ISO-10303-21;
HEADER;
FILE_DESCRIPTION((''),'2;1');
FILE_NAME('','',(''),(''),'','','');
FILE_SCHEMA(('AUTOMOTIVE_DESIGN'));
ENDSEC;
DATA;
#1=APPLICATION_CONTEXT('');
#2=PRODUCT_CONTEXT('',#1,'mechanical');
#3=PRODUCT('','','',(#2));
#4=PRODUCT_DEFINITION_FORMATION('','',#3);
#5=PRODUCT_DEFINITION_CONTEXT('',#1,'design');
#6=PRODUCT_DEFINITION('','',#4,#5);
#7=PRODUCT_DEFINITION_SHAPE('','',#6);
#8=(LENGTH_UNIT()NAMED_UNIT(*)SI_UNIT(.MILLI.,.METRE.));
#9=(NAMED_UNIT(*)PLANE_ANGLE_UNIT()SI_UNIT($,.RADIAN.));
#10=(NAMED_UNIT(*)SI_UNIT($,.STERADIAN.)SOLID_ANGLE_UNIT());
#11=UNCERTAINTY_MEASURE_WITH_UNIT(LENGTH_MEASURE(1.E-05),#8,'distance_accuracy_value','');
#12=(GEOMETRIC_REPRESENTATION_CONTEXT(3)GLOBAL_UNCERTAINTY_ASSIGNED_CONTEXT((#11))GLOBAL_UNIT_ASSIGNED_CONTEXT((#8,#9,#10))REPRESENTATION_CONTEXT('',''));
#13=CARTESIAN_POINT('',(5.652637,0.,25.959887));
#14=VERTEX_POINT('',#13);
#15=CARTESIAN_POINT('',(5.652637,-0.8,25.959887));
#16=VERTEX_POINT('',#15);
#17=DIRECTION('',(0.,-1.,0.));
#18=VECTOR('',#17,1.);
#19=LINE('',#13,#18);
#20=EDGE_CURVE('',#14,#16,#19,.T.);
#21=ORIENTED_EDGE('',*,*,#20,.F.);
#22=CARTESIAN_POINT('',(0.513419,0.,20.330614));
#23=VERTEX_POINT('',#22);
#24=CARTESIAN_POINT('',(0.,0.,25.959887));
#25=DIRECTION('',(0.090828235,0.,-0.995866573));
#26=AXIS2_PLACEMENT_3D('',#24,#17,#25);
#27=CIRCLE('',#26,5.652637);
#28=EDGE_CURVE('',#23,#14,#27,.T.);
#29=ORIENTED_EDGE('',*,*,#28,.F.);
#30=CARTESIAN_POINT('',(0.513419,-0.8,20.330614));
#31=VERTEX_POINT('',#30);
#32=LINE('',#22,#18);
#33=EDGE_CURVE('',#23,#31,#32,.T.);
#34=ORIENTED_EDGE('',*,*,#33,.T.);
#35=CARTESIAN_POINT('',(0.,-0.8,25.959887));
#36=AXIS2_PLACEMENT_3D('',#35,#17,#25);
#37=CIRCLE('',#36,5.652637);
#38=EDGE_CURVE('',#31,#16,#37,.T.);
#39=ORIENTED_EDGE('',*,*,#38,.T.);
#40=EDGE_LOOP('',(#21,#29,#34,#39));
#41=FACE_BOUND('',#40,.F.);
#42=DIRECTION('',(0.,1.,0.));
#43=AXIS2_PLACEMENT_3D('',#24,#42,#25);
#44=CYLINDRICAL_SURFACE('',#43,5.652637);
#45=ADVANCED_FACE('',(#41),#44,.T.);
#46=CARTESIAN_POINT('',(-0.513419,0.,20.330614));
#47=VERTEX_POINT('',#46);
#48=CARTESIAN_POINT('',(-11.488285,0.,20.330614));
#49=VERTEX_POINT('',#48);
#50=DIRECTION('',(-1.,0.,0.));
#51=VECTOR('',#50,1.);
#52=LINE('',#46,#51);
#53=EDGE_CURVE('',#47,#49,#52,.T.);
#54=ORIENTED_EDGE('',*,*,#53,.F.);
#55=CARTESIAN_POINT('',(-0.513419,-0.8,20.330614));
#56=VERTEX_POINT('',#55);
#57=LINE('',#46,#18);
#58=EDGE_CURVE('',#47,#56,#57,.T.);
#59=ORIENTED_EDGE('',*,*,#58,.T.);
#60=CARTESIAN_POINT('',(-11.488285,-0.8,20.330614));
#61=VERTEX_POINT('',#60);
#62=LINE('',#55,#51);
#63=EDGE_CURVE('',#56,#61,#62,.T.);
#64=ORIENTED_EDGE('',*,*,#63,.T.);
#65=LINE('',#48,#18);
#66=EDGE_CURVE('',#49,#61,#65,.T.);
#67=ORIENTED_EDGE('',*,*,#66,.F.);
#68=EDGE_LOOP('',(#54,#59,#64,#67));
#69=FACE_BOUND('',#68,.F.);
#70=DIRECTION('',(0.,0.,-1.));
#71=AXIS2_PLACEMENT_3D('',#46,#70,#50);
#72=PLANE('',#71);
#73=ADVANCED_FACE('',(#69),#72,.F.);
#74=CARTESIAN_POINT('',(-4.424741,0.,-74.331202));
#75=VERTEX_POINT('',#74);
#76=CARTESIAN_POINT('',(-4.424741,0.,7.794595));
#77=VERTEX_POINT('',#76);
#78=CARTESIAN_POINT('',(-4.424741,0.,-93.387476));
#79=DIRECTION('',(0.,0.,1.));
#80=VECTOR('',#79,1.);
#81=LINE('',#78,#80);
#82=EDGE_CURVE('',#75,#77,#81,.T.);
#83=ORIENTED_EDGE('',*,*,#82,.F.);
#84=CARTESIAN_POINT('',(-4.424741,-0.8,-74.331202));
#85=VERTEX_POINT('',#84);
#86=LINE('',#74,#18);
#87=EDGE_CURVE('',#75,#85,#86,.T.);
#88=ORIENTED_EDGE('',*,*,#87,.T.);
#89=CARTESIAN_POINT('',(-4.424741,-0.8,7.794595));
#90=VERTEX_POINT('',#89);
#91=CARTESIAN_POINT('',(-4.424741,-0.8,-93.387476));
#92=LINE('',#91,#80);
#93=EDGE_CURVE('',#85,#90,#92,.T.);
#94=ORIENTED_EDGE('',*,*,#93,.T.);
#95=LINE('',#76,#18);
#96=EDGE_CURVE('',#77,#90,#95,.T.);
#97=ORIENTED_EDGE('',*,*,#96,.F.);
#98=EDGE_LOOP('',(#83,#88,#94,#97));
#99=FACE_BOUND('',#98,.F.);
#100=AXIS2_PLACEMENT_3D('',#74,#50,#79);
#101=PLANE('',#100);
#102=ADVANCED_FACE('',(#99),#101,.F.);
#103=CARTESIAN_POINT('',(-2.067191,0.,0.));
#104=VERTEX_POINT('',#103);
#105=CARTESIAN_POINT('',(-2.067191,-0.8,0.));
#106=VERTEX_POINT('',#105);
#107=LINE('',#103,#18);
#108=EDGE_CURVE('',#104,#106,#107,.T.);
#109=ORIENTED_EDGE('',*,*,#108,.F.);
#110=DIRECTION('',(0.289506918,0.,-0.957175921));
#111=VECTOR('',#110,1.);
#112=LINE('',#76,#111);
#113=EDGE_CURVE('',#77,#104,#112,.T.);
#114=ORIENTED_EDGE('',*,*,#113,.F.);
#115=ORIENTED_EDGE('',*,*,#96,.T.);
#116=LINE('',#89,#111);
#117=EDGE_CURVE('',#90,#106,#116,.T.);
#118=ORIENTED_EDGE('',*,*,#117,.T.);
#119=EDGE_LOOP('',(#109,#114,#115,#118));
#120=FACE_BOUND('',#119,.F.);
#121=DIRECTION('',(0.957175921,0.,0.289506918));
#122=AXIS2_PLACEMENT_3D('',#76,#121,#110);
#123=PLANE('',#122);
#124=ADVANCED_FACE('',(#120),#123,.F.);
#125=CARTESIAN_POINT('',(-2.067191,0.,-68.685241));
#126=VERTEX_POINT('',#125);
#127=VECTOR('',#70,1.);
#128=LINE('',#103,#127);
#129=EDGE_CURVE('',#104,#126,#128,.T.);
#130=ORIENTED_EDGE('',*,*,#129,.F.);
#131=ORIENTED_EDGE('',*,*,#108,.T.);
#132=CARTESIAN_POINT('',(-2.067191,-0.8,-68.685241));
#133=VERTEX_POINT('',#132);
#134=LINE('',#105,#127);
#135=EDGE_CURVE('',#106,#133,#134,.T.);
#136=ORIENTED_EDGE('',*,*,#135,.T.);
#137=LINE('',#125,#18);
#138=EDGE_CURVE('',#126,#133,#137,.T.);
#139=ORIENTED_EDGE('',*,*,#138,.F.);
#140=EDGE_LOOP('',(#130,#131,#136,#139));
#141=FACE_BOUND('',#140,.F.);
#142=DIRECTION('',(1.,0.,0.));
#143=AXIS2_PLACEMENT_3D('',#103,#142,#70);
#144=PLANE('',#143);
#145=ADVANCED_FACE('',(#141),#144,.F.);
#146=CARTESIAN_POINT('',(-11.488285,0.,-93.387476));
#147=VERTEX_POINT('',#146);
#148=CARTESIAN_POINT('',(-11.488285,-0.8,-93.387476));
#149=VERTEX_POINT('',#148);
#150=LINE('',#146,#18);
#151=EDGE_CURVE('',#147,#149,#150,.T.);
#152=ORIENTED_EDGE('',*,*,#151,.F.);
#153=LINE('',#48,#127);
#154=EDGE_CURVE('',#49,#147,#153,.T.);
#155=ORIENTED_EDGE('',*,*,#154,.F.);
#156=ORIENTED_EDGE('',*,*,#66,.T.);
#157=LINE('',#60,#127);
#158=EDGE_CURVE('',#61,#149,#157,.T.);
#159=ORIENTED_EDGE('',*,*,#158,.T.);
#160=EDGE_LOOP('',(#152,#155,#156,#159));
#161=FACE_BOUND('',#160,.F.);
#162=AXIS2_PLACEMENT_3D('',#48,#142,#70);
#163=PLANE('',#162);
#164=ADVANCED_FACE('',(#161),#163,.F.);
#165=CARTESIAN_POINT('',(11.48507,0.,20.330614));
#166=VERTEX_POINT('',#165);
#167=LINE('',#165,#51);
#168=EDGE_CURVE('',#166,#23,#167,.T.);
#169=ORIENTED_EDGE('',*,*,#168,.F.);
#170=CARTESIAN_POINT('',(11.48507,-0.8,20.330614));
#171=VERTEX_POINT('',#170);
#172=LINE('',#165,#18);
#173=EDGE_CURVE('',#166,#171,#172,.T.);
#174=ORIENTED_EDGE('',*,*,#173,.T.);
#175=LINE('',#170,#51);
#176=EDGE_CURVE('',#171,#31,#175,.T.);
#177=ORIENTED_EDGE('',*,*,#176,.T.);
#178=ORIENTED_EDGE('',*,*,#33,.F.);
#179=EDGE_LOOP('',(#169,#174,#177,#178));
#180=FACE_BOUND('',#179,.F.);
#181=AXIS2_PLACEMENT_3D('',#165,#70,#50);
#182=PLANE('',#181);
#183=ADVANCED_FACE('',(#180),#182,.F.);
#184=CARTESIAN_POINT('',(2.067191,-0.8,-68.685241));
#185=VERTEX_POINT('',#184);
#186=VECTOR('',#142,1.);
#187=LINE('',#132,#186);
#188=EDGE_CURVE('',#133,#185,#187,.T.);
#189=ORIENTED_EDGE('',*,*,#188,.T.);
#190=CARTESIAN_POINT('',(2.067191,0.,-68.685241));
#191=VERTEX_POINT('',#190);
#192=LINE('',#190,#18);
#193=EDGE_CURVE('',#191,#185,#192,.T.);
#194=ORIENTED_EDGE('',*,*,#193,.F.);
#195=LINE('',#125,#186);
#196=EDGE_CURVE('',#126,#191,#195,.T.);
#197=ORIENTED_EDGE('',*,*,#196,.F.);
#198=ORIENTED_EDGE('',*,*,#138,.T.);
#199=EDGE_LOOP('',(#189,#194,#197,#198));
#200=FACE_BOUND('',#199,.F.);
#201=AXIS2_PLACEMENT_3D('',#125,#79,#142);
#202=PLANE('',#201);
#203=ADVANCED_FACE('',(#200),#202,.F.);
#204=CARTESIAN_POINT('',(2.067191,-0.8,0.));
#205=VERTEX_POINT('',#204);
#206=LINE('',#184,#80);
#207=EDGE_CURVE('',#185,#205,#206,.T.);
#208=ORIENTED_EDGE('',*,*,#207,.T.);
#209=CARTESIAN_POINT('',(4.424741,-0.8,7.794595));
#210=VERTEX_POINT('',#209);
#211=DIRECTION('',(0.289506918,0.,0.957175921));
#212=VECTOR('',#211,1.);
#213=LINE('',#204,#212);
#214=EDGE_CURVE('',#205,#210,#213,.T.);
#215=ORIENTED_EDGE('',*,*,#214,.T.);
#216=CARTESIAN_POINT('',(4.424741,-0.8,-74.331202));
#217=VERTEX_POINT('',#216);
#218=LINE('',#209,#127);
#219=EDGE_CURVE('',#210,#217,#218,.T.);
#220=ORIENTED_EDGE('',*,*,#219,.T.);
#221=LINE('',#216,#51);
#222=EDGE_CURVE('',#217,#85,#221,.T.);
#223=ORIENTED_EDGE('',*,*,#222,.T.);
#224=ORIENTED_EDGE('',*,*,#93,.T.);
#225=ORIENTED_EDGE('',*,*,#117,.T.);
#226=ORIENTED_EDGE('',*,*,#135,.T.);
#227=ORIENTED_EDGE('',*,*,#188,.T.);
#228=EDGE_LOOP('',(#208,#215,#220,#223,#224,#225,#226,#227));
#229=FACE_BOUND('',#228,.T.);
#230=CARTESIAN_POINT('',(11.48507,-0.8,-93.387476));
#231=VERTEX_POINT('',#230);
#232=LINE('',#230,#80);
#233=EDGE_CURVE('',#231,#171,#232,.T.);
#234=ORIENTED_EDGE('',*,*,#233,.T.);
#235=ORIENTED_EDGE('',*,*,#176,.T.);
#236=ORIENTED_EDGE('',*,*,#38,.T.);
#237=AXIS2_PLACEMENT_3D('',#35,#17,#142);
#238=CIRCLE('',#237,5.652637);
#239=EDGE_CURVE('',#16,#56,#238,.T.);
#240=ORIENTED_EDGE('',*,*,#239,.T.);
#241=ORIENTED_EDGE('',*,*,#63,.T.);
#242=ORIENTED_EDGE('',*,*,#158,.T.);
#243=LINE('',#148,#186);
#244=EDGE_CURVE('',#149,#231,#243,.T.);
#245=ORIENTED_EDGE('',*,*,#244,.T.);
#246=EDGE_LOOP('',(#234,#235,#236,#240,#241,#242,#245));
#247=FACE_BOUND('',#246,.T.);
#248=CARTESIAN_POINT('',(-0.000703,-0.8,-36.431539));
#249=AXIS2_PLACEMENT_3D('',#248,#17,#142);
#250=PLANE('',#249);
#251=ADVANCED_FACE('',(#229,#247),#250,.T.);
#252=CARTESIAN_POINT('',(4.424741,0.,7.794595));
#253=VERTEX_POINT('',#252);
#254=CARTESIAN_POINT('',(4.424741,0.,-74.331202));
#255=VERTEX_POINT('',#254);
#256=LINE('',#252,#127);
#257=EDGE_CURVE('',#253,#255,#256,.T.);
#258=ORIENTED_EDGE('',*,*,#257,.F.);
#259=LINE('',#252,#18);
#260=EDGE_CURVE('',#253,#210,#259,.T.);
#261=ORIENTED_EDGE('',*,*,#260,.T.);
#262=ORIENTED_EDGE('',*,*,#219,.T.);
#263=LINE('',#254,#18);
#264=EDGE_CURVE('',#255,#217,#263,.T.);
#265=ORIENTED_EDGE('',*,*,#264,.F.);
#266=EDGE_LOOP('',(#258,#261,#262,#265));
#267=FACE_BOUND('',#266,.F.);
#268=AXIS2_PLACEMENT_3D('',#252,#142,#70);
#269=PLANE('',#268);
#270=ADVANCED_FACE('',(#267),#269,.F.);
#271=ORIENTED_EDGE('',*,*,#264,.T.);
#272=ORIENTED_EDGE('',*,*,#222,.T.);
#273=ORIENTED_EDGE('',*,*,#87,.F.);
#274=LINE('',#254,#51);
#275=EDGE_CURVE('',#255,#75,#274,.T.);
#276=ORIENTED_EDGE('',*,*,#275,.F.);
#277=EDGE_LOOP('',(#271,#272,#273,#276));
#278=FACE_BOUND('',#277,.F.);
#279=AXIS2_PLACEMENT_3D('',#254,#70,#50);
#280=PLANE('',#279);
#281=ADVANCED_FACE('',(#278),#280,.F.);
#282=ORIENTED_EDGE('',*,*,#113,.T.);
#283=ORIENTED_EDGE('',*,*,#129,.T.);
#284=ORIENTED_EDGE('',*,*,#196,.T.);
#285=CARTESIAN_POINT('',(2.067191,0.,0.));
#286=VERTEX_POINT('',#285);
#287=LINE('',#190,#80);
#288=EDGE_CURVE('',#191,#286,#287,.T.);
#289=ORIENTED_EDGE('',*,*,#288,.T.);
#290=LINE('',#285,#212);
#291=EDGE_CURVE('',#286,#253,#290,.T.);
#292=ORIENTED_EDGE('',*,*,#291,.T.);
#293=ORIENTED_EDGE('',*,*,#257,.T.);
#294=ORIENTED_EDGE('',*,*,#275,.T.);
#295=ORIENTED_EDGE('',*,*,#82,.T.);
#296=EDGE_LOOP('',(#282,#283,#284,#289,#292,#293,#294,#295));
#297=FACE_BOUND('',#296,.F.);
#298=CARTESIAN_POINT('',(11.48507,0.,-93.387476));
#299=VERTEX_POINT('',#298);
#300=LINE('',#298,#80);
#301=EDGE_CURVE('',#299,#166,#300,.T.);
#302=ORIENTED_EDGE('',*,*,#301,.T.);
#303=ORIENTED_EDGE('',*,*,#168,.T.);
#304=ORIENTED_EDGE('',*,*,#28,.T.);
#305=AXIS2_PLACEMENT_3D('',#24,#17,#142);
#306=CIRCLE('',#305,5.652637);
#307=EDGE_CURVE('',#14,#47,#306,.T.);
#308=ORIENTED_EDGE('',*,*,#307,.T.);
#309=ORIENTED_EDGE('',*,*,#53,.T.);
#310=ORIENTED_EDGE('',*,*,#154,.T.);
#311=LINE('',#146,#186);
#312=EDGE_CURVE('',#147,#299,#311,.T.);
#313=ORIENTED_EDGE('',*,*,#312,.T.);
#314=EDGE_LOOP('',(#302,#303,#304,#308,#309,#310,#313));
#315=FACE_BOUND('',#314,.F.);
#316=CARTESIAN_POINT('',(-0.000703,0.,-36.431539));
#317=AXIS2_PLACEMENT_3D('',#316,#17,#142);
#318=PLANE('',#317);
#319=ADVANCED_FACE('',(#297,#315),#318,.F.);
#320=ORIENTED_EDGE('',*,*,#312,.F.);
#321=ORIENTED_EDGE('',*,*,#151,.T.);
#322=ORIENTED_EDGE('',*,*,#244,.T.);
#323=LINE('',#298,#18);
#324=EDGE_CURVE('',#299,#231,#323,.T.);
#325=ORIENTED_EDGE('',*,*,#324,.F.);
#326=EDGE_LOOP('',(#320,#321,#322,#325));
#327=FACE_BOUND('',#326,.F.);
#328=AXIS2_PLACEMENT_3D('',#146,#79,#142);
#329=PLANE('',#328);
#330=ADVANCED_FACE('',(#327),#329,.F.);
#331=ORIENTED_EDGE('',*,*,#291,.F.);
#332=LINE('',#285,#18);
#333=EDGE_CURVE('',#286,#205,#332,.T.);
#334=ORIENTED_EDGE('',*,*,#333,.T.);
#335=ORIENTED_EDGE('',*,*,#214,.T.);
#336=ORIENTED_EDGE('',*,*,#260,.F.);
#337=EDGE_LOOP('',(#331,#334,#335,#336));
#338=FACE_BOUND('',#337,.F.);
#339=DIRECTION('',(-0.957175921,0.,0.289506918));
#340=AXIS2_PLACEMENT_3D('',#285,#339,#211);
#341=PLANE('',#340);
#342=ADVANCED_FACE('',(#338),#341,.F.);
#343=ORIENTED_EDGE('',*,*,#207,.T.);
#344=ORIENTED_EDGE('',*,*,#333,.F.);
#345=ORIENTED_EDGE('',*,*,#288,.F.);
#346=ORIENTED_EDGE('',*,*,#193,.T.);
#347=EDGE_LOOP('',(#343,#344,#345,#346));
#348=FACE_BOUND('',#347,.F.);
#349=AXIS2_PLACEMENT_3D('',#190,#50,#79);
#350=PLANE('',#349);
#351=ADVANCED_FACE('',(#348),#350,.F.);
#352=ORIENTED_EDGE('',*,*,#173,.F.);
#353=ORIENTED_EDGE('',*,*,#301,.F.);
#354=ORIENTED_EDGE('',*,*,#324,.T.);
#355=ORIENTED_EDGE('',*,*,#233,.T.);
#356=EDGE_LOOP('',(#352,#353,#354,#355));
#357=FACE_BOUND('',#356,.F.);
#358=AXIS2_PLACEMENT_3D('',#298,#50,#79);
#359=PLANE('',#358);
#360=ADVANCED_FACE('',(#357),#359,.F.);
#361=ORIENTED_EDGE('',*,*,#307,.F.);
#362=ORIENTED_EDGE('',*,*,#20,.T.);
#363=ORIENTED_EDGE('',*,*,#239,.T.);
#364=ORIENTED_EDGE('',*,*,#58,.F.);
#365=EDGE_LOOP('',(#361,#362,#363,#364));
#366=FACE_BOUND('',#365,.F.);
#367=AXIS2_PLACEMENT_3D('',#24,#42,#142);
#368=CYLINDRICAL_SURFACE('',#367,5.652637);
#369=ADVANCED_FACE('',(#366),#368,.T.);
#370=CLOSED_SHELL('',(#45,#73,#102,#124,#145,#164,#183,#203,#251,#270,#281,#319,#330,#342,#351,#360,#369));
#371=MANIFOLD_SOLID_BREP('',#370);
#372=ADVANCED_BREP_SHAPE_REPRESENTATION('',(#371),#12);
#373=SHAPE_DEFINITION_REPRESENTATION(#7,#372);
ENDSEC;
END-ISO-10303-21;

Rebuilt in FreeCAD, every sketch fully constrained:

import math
import FreeCAD as App
import Part
import Sketcher

V = App.Vector
Q = App.Units.Quantity

doc = App.newDocument("Part")
body = doc.addObject("PartDesign::Body", "Body")

sketch1 = body.newObject("Sketcher::SketchObject", "Sketch")
sketch1.AttachmentSupport = (doc.getObject("XZ_Plane"), [""])
sketch1.MapMode = "FlatFace"
sketch1.addGeometry(Part.LineSegment(V(-0.513419, 20.330614, 0), V(-11.488285, 20.330614, 0)), False)
sketch1.addGeometry(Part.LineSegment(V(-11.488285, 20.330614, 0), V(-11.488285, -93.387476, 0)), False)
sketch1.addGeometry(Part.LineSegment(V(-11.488285, -93.387476, 0), V(11.48507, -93.387476, 0)), False)
sketch1.addGeometry(Part.LineSegment(V(11.48507, -93.387476, 0), V(11.48507, 20.330614, 0)), False)
sketch1.addGeometry(Part.LineSegment(V(11.48507, 20.330614, 0), V(0.513419, 20.330614, 0)), False)
sketch1.addGeometry(Part.ArcOfCircle(Part.Circle(V(0, 25.959887, 0), V(0, 0, 1), 5.652637), math.radians(-84.788743), math.radians(0)), False)
sketch1.addGeometry(Part.ArcOfCircle(Part.Circle(V(0, 25.959887, 0), V(0, 0, 1), 5.652637), math.radians(0), math.radians(264.788743)), False)
sketch1.addGeometry(Part.LineSegment(V(-4.424741, -74.331202, 0), V(-4.424741, 7.794595, 0)), False)
sketch1.addGeometry(Part.LineSegment(V(-4.424741, 7.794595, 0), V(-2.067191, 0, 0)), False)
sketch1.addGeometry(Part.LineSegment(V(-2.067191, 0, 0), V(-2.067191, -68.685241, 0)), False)
sketch1.addGeometry(Part.LineSegment(V(-2.067191, -68.685241, 0), V(2.067191, -68.685241, 0)), False)
sketch1.addGeometry(Part.LineSegment(V(2.067191, -68.685241, 0), V(2.067191, 0, 0)), False)
sketch1.addGeometry(Part.LineSegment(V(2.067191, 0, 0), V(4.424741, 7.794595, 0)), False)
sketch1.addGeometry(Part.LineSegment(V(4.424741, 7.794595, 0), V(4.424741, -74.331202, 0)), False)
sketch1.addGeometry(Part.LineSegment(V(4.424741, -74.331202, 0), V(-4.424741, -74.331202, 0)), False)
sketch1.addConstraint(Sketcher.Constraint("Coincident", 0, 2, 1, 1))
sketch1.addConstraint(Sketcher.Constraint("Coincident", 1, 2, 2, 1))
sketch1.addConstraint(Sketcher.Constraint("Coincident", 2, 2, 3, 1))
sketch1.addConstraint(Sketcher.Constraint("Coincident", 3, 2, 4, 1))
sketch1.addConstraint(Sketcher.Constraint("Coincident", 4, 2, 5, 1))
sketch1.addConstraint(Sketcher.Constraint("Tangent", 5, 2, 6, 1))
sketch1.addConstraint(Sketcher.Constraint("Coincident", 6, 2, 0, 1))
sketch1.addConstraint(Sketcher.Constraint("Coincident", 7, 2, 8, 1))
sketch1.addConstraint(Sketcher.Constraint("Coincident", 8, 2, 9, 1))
sketch1.addConstraint(Sketcher.Constraint("Coincident", 9, 2, 10, 1))
sketch1.addConstraint(Sketcher.Constraint("Coincident", 10, 2, 11, 1))
sketch1.addConstraint(Sketcher.Constraint("Coincident", 11, 2, 12, 1))
sketch1.addConstraint(Sketcher.Constraint("Coincident", 12, 2, 13, 1))
sketch1.addConstraint(Sketcher.Constraint("Coincident", 13, 2, 14, 1))
sketch1.addConstraint(Sketcher.Constraint("Coincident", 14, 2, 7, 1))
sketch1.addConstraint(Sketcher.Constraint("Horizontal", 0))
sketch1.addConstraint(Sketcher.Constraint("Vertical", 1))
sketch1.addConstraint(Sketcher.Constraint("Horizontal", 2))
sketch1.addConstraint(Sketcher.Constraint("Vertical", 3))
sketch1.addConstraint(Sketcher.Constraint("Horizontal", 4))
sketch1.addConstraint(Sketcher.Constraint("Vertical", 7))
sketch1.addConstraint(Sketcher.Constraint("Vertical", 9))
sketch1.addConstraint(Sketcher.Constraint("Horizontal", 10))
sketch1.addConstraint(Sketcher.Constraint("Vertical", 11))
sketch1.addConstraint(Sketcher.Constraint("Vertical", 13))
sketch1.addConstraint(Sketcher.Constraint("Horizontal", 14))
sketch1.addConstraint(Sketcher.Constraint("Equal", 5, 6))
sketch1.addConstraint(Sketcher.Constraint("Symmetric", 8, 2, 11, 2, -1, 1))
sketch1.addConstraint(Sketcher.Constraint("Symmetric", 4, 2, 6, 2, -2))
sketch1.addConstraint(Sketcher.Constraint("Symmetric", 7, 2, 12, 2, -2))
sketch1.addConstraint(Sketcher.Constraint("PointOnObject", 8, 2, -1))
sketch1.addConstraint(Sketcher.Constraint("Horizontal", 6, 3, 5, 2))
sketch1.addConstraint(Sketcher.Constraint("Radius", 5, Q("5.652637 mm")))
sketch1.addConstraint(Sketcher.Constraint("DistanceX", 4, 2, 4, 1, Q("10.971651 mm")))
sketch1.addConstraint(Sketcher.Constraint("DistanceX", 14, 2, 14, 1, Q("8.849481 mm")))
sketch1.addConstraint(Sketcher.Constraint("DistanceY", 1, 2, 1, 1, Q("113.71809 mm")))
sketch1.addConstraint(Sketcher.Constraint("DistanceY", 9, 2, 9, 1, Q("68.685241 mm")))
sketch1.addConstraint(Sketcher.Constraint("DistanceY", 13, 2, -1, 1, Q("74.331202 mm")))
sketch1.addConstraint(Sketcher.Constraint("DistanceX", 0, 2, 0, 1, Q("10.974866 mm")))
sketch1.addConstraint(Sketcher.Constraint("DistanceX", 2, 1, 2, 2, Q("22.973355 mm")))
sketch1.addConstraint(Sketcher.Constraint("DistanceX", 10, 1, 10, 2, Q("4.134383 mm")))
sketch1.addConstraint(Sketcher.Constraint("DistanceY", 7, 1, 7, 2, Q("82.125797 mm")))
sketch1.addConstraint(Sketcher.Constraint("DistanceY", 7, 2, 6, 2, Q("12.536019 mm")))
pad1 = body.newObject("PartDesign::Pad", "Pad")
pad1.Profile = sketch1
pad1.Length = 0.8

doc.recompute()
